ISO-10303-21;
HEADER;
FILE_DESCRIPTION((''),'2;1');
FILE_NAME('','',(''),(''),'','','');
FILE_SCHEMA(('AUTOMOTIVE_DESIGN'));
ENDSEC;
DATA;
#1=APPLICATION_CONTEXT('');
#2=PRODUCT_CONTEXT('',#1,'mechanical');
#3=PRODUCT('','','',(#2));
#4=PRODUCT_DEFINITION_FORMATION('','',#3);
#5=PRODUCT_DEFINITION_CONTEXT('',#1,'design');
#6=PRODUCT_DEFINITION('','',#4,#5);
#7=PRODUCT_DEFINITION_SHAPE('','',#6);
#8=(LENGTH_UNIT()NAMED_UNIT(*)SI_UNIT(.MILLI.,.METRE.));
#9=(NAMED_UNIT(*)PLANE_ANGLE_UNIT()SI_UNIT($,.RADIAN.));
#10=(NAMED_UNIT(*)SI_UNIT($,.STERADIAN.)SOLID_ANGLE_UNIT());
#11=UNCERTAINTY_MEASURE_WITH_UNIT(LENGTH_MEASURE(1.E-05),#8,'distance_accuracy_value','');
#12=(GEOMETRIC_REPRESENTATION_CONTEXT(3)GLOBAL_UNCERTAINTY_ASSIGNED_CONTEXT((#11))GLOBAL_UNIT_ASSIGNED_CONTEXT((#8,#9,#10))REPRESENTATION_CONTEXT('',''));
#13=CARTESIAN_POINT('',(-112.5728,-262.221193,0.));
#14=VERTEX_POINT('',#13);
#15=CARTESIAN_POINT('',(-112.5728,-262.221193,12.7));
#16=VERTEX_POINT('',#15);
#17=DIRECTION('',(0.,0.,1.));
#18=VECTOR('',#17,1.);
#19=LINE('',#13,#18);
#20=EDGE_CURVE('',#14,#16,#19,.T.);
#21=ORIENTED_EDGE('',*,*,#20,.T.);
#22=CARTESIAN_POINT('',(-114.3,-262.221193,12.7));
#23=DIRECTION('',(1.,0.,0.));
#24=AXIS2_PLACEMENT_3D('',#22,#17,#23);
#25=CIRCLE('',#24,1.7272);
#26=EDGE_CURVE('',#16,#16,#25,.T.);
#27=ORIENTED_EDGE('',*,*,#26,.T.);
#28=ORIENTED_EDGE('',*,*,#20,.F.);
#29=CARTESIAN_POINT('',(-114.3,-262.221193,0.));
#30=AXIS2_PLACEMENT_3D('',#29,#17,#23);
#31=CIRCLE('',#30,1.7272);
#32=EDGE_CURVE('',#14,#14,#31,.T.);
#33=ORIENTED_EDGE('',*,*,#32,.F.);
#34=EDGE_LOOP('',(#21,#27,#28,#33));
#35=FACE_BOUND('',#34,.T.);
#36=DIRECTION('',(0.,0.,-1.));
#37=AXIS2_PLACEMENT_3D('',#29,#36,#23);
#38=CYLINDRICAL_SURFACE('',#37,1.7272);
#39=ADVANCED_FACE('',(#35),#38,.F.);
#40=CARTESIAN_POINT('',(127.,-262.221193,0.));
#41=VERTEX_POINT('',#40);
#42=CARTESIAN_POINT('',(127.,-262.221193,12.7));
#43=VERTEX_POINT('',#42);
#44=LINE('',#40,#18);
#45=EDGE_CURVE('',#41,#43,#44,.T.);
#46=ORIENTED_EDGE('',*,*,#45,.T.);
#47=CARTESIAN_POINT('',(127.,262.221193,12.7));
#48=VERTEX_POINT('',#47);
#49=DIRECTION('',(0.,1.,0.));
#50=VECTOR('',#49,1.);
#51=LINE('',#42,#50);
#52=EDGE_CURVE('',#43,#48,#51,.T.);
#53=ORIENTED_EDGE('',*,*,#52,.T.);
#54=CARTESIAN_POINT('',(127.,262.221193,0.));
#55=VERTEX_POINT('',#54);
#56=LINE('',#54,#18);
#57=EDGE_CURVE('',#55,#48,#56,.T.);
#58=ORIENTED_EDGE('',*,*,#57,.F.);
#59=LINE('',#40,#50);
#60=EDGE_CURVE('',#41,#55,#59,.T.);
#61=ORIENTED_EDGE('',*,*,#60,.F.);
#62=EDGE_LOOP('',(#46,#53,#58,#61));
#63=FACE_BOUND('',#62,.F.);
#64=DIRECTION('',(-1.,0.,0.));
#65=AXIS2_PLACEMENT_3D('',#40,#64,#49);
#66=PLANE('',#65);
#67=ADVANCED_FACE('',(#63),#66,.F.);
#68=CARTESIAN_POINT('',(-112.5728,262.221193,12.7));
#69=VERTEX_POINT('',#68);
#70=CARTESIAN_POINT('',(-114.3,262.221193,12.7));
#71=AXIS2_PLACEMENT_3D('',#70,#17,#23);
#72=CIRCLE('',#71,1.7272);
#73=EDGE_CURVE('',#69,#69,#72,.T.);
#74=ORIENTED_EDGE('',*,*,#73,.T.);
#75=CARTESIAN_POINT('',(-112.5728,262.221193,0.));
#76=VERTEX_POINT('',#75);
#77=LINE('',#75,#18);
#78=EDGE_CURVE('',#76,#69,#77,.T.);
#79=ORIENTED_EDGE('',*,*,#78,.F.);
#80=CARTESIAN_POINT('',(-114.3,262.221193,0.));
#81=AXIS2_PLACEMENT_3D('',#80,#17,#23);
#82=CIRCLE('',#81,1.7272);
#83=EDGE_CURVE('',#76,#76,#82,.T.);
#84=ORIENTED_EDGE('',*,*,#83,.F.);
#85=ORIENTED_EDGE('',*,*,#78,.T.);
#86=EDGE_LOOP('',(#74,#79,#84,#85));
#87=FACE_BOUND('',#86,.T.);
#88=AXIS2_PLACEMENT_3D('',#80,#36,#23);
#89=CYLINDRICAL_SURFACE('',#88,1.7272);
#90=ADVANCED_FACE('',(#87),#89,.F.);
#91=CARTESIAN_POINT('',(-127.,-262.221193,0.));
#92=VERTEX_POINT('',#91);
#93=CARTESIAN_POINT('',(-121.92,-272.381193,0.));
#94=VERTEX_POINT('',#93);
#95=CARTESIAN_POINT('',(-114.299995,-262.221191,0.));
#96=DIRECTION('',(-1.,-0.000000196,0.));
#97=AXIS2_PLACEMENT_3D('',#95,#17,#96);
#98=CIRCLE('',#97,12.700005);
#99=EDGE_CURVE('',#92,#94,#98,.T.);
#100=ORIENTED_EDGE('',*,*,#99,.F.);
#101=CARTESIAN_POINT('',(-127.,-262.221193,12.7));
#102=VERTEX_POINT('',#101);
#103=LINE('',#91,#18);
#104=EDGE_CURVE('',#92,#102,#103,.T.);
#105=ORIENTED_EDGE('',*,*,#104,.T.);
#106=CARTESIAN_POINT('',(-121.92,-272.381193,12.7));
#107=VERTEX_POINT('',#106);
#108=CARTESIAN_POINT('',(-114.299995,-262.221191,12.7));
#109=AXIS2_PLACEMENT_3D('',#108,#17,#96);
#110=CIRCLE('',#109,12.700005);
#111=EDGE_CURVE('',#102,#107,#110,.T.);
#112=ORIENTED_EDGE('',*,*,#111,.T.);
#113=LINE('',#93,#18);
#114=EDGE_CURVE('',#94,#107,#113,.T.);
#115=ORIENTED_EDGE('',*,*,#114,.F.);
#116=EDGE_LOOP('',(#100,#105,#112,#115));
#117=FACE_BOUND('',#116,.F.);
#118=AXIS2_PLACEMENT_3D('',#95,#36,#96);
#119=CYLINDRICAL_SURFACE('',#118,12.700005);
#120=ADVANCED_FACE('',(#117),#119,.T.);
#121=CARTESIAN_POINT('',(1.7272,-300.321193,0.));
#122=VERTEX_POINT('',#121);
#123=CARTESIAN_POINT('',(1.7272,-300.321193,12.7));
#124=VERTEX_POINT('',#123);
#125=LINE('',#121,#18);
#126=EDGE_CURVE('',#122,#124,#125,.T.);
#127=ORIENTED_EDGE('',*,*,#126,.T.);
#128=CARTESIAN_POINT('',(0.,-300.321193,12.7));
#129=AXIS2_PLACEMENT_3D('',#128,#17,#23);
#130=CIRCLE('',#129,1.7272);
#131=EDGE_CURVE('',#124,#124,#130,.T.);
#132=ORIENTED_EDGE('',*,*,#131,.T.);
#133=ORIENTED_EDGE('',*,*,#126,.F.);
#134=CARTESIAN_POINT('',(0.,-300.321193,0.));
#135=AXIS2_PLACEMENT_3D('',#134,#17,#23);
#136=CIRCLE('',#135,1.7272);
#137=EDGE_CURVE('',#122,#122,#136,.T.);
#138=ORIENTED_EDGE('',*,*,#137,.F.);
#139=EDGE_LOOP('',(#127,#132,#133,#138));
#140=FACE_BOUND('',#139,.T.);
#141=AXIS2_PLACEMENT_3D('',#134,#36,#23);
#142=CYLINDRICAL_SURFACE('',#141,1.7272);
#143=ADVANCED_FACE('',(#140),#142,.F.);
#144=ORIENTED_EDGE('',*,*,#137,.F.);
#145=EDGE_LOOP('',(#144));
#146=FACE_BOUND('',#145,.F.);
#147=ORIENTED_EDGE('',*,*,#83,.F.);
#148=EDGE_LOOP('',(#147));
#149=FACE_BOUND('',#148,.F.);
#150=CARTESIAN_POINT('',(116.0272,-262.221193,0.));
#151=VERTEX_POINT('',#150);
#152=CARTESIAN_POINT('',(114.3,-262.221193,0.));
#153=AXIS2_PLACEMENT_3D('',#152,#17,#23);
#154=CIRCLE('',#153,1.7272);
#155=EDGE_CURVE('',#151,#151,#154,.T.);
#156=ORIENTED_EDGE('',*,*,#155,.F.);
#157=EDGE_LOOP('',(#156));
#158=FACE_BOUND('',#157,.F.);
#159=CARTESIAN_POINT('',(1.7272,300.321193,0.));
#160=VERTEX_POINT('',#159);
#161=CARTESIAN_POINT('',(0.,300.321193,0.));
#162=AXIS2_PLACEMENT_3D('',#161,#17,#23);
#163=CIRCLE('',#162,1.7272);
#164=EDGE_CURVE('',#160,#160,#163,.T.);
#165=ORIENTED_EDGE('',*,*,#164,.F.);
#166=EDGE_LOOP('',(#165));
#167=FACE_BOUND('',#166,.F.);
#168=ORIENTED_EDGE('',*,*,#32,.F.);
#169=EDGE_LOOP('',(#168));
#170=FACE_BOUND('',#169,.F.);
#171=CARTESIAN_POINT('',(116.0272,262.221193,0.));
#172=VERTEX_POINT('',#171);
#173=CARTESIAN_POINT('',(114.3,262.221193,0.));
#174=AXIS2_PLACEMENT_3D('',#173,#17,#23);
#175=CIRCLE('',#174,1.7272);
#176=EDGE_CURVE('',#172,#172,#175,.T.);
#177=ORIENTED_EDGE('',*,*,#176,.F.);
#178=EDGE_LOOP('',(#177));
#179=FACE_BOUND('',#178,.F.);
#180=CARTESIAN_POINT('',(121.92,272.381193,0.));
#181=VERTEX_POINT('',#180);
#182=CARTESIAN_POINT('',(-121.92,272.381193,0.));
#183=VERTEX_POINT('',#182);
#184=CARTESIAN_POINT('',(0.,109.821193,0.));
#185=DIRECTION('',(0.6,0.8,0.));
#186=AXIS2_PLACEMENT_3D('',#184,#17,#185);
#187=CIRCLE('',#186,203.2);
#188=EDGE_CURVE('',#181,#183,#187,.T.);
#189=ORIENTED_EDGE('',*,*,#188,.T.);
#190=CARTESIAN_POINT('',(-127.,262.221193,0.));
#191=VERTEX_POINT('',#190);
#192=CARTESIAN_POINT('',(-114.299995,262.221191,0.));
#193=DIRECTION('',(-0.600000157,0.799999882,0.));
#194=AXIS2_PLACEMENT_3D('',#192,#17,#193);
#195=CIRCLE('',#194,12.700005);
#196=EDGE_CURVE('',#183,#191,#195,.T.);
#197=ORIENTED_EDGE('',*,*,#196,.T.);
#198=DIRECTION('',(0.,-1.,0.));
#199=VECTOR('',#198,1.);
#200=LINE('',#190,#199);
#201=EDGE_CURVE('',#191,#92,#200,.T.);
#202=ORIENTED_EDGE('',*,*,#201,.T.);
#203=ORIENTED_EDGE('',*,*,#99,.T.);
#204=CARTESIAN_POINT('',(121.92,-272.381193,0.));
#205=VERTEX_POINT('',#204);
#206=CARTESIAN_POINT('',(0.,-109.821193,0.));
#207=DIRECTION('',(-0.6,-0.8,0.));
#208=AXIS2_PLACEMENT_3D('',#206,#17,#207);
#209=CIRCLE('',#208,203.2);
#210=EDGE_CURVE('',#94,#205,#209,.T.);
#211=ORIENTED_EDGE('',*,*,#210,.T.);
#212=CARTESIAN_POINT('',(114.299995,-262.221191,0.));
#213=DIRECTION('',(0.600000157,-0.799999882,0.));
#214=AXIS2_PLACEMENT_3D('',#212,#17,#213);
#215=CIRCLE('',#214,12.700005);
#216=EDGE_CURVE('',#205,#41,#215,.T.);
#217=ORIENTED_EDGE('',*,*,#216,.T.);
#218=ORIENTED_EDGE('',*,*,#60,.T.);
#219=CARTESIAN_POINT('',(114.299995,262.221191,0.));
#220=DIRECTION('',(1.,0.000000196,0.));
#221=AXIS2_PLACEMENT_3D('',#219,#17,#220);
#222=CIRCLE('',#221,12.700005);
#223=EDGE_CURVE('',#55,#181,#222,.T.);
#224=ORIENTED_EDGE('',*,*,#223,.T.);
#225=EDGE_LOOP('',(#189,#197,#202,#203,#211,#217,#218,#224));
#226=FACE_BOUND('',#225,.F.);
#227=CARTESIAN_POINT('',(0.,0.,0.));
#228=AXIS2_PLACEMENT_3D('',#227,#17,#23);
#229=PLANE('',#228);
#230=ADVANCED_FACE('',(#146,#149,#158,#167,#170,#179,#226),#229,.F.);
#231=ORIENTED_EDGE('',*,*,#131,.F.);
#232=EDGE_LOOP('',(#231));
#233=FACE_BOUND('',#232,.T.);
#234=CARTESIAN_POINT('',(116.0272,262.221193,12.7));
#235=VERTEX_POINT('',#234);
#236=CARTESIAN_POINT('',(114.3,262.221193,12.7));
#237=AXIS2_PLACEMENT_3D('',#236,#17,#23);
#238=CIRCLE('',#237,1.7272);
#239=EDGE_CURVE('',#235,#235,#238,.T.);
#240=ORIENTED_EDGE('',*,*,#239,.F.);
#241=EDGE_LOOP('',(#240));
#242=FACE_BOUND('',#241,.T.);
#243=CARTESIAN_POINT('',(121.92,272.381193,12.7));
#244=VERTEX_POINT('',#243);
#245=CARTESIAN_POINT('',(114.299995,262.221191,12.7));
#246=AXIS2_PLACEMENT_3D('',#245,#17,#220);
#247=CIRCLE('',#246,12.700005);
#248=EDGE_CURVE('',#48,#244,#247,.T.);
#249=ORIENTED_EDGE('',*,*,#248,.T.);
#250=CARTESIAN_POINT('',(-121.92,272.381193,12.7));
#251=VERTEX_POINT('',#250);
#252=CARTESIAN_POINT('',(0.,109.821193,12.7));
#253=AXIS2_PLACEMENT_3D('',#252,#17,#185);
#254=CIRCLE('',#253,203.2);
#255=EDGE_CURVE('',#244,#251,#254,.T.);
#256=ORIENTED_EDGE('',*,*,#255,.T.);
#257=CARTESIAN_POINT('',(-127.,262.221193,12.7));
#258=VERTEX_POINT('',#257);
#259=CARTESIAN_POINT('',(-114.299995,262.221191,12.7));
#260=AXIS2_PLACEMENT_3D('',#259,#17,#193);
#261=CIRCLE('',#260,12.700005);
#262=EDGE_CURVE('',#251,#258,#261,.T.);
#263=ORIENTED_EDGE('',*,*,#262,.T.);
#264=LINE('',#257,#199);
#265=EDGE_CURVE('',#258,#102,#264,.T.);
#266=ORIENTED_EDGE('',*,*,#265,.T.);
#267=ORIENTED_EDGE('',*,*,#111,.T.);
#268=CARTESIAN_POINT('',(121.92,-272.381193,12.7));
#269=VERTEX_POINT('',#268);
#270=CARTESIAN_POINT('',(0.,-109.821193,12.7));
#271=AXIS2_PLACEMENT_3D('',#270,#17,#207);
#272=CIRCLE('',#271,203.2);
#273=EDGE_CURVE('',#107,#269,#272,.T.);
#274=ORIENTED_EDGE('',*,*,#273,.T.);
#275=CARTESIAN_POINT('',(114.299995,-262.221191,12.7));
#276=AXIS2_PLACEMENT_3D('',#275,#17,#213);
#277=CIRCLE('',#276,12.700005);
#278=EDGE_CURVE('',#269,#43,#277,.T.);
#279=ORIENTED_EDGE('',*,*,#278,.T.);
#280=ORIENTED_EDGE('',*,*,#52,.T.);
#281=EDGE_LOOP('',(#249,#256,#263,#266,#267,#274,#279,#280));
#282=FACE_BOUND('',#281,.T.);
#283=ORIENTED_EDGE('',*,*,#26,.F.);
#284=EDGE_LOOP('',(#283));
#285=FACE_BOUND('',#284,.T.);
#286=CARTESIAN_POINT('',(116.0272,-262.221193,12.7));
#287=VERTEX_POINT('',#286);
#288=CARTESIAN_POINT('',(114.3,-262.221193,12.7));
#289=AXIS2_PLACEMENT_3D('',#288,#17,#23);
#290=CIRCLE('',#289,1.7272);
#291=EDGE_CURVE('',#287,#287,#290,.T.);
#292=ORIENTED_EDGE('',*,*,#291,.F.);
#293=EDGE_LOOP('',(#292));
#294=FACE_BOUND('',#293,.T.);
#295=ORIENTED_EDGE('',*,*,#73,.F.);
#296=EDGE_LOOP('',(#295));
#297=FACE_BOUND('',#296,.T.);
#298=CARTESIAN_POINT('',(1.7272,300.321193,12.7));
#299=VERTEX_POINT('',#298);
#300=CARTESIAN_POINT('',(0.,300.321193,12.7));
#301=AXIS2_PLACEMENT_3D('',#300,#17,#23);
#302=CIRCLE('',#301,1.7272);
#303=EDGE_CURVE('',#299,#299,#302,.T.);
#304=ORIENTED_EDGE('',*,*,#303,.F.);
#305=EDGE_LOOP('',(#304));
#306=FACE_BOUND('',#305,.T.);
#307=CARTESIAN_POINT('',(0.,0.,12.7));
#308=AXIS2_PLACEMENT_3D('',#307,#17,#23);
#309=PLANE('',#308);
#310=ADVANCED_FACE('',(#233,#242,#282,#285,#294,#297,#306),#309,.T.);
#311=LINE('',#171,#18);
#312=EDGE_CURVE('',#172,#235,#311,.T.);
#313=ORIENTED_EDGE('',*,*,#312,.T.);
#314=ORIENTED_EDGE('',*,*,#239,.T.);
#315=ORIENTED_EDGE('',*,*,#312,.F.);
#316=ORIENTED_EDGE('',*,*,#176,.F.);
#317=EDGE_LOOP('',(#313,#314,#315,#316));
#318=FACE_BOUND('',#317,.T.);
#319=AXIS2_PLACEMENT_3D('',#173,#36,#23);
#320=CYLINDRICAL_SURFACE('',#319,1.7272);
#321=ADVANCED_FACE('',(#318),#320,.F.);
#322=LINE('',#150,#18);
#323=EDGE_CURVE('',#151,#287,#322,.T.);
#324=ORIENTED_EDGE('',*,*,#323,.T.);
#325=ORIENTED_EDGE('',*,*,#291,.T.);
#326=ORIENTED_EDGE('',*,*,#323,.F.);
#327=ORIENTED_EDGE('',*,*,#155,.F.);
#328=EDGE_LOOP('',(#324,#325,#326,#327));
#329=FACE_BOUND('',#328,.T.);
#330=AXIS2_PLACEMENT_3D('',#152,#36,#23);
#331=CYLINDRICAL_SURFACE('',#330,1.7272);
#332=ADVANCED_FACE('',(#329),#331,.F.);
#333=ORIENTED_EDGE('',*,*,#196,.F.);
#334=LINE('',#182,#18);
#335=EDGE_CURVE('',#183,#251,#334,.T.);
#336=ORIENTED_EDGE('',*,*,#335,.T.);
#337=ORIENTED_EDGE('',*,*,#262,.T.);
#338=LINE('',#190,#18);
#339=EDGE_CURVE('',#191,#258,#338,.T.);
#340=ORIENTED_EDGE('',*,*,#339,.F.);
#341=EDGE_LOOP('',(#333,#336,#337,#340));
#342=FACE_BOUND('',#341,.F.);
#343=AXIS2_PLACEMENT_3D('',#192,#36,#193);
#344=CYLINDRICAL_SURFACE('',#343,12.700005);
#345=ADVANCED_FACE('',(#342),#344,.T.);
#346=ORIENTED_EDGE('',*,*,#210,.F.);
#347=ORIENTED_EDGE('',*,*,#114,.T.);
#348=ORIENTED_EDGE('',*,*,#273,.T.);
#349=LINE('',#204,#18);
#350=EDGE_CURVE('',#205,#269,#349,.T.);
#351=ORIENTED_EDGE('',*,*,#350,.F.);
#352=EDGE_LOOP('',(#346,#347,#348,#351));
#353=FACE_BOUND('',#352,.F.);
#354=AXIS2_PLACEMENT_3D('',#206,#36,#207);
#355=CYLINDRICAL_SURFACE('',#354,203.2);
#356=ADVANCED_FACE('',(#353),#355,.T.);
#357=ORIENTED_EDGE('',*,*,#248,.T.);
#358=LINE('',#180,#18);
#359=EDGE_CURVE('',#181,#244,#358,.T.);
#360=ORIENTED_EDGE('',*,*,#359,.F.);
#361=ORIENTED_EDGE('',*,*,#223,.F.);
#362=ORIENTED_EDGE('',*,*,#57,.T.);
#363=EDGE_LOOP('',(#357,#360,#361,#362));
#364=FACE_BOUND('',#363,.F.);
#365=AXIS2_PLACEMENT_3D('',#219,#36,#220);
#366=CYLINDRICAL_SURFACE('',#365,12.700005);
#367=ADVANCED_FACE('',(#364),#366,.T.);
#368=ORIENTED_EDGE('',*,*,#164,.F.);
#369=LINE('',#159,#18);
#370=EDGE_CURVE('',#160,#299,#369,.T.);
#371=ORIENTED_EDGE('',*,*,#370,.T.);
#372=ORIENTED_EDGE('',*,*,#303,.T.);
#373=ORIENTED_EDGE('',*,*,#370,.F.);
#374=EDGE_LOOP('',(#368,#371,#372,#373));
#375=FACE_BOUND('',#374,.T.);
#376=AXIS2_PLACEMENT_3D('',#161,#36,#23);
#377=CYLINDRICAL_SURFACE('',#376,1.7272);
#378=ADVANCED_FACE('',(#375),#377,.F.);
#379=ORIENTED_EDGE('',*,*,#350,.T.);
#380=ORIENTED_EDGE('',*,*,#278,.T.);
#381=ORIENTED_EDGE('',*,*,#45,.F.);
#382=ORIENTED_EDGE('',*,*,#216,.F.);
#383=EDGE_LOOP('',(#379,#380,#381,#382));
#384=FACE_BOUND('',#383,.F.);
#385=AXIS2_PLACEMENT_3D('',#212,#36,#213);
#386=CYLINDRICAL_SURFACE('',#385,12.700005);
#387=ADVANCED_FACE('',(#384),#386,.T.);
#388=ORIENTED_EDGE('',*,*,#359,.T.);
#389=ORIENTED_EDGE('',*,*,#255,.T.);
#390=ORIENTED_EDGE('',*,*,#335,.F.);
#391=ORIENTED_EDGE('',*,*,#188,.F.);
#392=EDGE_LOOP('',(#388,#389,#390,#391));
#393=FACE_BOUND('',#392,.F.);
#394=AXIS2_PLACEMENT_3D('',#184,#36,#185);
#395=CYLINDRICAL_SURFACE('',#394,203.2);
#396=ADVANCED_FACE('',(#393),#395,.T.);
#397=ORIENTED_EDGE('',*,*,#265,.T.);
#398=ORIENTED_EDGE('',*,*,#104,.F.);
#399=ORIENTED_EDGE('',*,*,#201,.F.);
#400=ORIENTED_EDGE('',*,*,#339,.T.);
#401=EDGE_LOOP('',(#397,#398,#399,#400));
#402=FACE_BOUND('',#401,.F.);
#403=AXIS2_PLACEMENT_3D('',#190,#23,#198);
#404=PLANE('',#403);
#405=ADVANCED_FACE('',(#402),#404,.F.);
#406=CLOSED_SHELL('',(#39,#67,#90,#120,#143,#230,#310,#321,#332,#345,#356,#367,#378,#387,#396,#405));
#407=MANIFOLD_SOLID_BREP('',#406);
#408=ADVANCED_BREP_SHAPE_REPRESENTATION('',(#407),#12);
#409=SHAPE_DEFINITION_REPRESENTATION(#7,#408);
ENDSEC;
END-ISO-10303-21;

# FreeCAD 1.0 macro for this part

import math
import FreeCAD as App
import Part
import Sketcher

V = App.Vector
Q = App.Units.Quantity

doc = App.newDocument("Part")
body = doc.addObject("PartDesign::Body", "Body")

# Sketch on XY plane
sketch1 = body.newObject("Sketcher::SketchObject", "Sketch")
sketch1.AttachmentSupport = (doc.getObject("XY_Plane"), [""])
sketch1.MapMode = "FlatFace"
sketch1.addGeometry([
    Part.LineSegment(V(127, -262.2, 0), V(127, 262.2, 0)),  # 0
    Part.ArcOfCircle(Part.Circle(V(114.3, 262.2, 0), V(0, 0, 1), 12.7), math.radians(0), math.radians(53)),  # 1
    Part.ArcOfCircle(Part.Circle(V(0, 109.8, 0), V(0, 0, 1), 203.2), math.radians(53), math.radians(127)),  # 2
    Part.ArcOfCircle(Part.Circle(V(-114.3, 262.2, 0), V(0, 0, 1), 12.7), math.radians(127), math.radians(180)),  # 3
    Part.LineSegment(V(-127, 262.2, 0), V(-127, -262.2, 0)),  # 4
    Part.ArcOfCircle(Part.Circle(V(-114.3, -262.2, 0), V(0, 0, 1), 12.7), math.radians(-180), math.radians(-127)),  # 5
    Part.ArcOfCircle(Part.Circle(V(0, -109.8, 0), V(0, 0, 1), 203.2), math.radians(-127), math.radians(-53)),  # 6
    Part.ArcOfCircle(Part.Circle(V(114.3, -262.2, 0), V(0, 0, 1), 12.7), math.radians(-53), math.radians(0)),  # 7
    Part.Circle(V(-114.3, -262.2, 0), V(0, 0, 1), 1.7),  # 8
    Part.Circle(V(0, -300.3, 0), V(0, 0, 1), 1.7),  # 9
    Part.Circle(V(114.3, -262.2, 0), V(0, 0, 1), 1.7),  # 10
    Part.Circle(V(-114.3, 262.2, 0), V(0, 0, 1), 1.7),  # 11
    Part.Circle(V(0, 300.3, 0), V(0, 0, 1), 1.7),  # 12
    Part.Circle(V(114.3, 262.2, 0), V(0, 0, 1), 1.7),  # 13
], False)
sketch1.addConstraint([
    Sketcher.Constraint("Tangent", 0, 2, 1, 1),
    Sketcher.Constraint("Tangent", 1, 2, 2, 1),
    Sketcher.Constraint("Tangent", 2, 2, 3, 1),
    Sketcher.Constraint("Tangent", 3, 2, 4, 1),
    Sketcher.Constraint("Tangent", 4, 2, 5, 1),
    Sketcher.Constraint("Tangent", 5, 2, 6, 1),
    Sketcher.Constraint("Tangent", 6, 2, 7, 1),
    Sketcher.Constraint("Tangent", 7, 2, 0, 1),
    Sketcher.Constraint("Vertical", 0),
    Sketcher.Constraint("Vertical", 4),
    Sketcher.Constraint("Coincident", 8, 3, 5, 3),
    Sketcher.Constraint("Coincident", 10, 3, 7, 3),
    Sketcher.Constraint("Coincident", 11, 3, 3, 3),
    Sketcher.Constraint("Coincident", 13, 3, 1, 3),
    Sketcher.Constraint("Equal", 1, 3),
    Sketcher.Constraint("Equal", 3, 5),
    Sketcher.Constraint("Equal", 2, 6),
    Sketcher.Constraint("Equal", 5, 7),
    Sketcher.Constraint("Equal", 8, 9),
    Sketcher.Constraint("Equal", 9, 10),
    Sketcher.Constraint("Equal", 10, 11),
    Sketcher.Constraint("Equal", 11, 12),
    Sketcher.Constraint("Equal", 12, 13),
    Sketcher.Constraint("Symmetric", 1, 3, 5, 3, -1, 1),
    Sketcher.Constraint("Symmetric", 9, 3, 12, 3, -1, 1),
    Sketcher.Constraint("Symmetric", 2, 3, 6, 3, -1),
    Sketcher.Constraint("PointOnObject", 9, 3, -2),
    Sketcher.Constraint("Radius", 2, Q("8 in")),
    Sketcher.Constraint("Radius", 1, Q("0.5000002 in")),
    Sketcher.Constraint("Diameter", 8, Q("0.136 in")),
    Sketcher.Constraint("DistanceX", -1, 1, 0, 2, Q("5 in")),
    Sketcher.Constraint("DistanceY", 9, 3, 5, 3, Q("1.5000001 in")),
    Sketcher.Constraint("DistanceY", 0, 1, 0, 2, 524.442386),
])
pad1 = body.newObject("PartDesign::Pad", "Pad")
pad1.Profile = sketch1
pad1.Length = Q("0.5 in")

doc.recompute()
